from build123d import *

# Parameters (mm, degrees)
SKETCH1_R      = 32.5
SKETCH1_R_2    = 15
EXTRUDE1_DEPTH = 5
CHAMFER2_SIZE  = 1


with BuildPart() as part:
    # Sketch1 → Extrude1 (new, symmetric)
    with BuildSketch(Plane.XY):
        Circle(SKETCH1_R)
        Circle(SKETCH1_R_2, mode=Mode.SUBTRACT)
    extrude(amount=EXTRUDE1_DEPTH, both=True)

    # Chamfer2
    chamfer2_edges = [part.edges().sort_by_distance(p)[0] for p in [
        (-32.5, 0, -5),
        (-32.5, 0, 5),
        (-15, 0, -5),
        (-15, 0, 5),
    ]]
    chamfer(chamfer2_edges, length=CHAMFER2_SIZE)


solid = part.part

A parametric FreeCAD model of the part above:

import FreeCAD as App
import Part
import Sketcher


def edges_at(feature, points):
    """Names of the edges that pass closest to the given points."""
    edges = feature.Shape.Edges
    near = lambda p: min(range(len(edges)), key=lambda i: edges[i].distToShape(Part.Vertex(*p))[0])
    return sorted({f"Edge{near(p) + 1}" for p in points})

doc = App.newDocument("Part")
body = doc.addObject("PartDesign::Body", "Body")

sketch1 = body.newObject("Sketcher::SketchObject", "Sketch")
sketch1.AttachmentSupport = (doc.getObject("XY_Plane"), [""])
sketch1.MapMode = "FlatFace"
sketch1.addGeometry([
    Part.Circle(App.Vector(0, 0, 0), App.Vector(0, 0, 1), 32.5),
    Part.Circle(App.Vector(0, 0, 0), App.Vector(0, 0, 1), 15),
], False)
sketch1.addConstraint([
    Sketcher.Constraint("Coincident", 0, 3, -1, 1),
    Sketcher.Constraint("Coincident", 1, 3, -1, 1),
    Sketcher.Constraint("Diameter", 0, 65.0),
    Sketcher.Constraint("Diameter", 1, 30.0),
])
pad1 = body.newObject("PartDesign::Pad", "Pad")
pad1.Profile = sketch1
pad1.Length = 10
pad1.Midplane = True
doc.recompute()

chamfer = body.newObject("PartDesign::Chamfer", "Chamfer")
chamfer.Base = (pad1, edges_at(pad1, [
    (-32.5, 0, -5),
    (-32.5, 0, 5),
    (-15, 0, -5),
    (-15, 0, 5),
]))
chamfer.Size = 1

doc.recompute()
